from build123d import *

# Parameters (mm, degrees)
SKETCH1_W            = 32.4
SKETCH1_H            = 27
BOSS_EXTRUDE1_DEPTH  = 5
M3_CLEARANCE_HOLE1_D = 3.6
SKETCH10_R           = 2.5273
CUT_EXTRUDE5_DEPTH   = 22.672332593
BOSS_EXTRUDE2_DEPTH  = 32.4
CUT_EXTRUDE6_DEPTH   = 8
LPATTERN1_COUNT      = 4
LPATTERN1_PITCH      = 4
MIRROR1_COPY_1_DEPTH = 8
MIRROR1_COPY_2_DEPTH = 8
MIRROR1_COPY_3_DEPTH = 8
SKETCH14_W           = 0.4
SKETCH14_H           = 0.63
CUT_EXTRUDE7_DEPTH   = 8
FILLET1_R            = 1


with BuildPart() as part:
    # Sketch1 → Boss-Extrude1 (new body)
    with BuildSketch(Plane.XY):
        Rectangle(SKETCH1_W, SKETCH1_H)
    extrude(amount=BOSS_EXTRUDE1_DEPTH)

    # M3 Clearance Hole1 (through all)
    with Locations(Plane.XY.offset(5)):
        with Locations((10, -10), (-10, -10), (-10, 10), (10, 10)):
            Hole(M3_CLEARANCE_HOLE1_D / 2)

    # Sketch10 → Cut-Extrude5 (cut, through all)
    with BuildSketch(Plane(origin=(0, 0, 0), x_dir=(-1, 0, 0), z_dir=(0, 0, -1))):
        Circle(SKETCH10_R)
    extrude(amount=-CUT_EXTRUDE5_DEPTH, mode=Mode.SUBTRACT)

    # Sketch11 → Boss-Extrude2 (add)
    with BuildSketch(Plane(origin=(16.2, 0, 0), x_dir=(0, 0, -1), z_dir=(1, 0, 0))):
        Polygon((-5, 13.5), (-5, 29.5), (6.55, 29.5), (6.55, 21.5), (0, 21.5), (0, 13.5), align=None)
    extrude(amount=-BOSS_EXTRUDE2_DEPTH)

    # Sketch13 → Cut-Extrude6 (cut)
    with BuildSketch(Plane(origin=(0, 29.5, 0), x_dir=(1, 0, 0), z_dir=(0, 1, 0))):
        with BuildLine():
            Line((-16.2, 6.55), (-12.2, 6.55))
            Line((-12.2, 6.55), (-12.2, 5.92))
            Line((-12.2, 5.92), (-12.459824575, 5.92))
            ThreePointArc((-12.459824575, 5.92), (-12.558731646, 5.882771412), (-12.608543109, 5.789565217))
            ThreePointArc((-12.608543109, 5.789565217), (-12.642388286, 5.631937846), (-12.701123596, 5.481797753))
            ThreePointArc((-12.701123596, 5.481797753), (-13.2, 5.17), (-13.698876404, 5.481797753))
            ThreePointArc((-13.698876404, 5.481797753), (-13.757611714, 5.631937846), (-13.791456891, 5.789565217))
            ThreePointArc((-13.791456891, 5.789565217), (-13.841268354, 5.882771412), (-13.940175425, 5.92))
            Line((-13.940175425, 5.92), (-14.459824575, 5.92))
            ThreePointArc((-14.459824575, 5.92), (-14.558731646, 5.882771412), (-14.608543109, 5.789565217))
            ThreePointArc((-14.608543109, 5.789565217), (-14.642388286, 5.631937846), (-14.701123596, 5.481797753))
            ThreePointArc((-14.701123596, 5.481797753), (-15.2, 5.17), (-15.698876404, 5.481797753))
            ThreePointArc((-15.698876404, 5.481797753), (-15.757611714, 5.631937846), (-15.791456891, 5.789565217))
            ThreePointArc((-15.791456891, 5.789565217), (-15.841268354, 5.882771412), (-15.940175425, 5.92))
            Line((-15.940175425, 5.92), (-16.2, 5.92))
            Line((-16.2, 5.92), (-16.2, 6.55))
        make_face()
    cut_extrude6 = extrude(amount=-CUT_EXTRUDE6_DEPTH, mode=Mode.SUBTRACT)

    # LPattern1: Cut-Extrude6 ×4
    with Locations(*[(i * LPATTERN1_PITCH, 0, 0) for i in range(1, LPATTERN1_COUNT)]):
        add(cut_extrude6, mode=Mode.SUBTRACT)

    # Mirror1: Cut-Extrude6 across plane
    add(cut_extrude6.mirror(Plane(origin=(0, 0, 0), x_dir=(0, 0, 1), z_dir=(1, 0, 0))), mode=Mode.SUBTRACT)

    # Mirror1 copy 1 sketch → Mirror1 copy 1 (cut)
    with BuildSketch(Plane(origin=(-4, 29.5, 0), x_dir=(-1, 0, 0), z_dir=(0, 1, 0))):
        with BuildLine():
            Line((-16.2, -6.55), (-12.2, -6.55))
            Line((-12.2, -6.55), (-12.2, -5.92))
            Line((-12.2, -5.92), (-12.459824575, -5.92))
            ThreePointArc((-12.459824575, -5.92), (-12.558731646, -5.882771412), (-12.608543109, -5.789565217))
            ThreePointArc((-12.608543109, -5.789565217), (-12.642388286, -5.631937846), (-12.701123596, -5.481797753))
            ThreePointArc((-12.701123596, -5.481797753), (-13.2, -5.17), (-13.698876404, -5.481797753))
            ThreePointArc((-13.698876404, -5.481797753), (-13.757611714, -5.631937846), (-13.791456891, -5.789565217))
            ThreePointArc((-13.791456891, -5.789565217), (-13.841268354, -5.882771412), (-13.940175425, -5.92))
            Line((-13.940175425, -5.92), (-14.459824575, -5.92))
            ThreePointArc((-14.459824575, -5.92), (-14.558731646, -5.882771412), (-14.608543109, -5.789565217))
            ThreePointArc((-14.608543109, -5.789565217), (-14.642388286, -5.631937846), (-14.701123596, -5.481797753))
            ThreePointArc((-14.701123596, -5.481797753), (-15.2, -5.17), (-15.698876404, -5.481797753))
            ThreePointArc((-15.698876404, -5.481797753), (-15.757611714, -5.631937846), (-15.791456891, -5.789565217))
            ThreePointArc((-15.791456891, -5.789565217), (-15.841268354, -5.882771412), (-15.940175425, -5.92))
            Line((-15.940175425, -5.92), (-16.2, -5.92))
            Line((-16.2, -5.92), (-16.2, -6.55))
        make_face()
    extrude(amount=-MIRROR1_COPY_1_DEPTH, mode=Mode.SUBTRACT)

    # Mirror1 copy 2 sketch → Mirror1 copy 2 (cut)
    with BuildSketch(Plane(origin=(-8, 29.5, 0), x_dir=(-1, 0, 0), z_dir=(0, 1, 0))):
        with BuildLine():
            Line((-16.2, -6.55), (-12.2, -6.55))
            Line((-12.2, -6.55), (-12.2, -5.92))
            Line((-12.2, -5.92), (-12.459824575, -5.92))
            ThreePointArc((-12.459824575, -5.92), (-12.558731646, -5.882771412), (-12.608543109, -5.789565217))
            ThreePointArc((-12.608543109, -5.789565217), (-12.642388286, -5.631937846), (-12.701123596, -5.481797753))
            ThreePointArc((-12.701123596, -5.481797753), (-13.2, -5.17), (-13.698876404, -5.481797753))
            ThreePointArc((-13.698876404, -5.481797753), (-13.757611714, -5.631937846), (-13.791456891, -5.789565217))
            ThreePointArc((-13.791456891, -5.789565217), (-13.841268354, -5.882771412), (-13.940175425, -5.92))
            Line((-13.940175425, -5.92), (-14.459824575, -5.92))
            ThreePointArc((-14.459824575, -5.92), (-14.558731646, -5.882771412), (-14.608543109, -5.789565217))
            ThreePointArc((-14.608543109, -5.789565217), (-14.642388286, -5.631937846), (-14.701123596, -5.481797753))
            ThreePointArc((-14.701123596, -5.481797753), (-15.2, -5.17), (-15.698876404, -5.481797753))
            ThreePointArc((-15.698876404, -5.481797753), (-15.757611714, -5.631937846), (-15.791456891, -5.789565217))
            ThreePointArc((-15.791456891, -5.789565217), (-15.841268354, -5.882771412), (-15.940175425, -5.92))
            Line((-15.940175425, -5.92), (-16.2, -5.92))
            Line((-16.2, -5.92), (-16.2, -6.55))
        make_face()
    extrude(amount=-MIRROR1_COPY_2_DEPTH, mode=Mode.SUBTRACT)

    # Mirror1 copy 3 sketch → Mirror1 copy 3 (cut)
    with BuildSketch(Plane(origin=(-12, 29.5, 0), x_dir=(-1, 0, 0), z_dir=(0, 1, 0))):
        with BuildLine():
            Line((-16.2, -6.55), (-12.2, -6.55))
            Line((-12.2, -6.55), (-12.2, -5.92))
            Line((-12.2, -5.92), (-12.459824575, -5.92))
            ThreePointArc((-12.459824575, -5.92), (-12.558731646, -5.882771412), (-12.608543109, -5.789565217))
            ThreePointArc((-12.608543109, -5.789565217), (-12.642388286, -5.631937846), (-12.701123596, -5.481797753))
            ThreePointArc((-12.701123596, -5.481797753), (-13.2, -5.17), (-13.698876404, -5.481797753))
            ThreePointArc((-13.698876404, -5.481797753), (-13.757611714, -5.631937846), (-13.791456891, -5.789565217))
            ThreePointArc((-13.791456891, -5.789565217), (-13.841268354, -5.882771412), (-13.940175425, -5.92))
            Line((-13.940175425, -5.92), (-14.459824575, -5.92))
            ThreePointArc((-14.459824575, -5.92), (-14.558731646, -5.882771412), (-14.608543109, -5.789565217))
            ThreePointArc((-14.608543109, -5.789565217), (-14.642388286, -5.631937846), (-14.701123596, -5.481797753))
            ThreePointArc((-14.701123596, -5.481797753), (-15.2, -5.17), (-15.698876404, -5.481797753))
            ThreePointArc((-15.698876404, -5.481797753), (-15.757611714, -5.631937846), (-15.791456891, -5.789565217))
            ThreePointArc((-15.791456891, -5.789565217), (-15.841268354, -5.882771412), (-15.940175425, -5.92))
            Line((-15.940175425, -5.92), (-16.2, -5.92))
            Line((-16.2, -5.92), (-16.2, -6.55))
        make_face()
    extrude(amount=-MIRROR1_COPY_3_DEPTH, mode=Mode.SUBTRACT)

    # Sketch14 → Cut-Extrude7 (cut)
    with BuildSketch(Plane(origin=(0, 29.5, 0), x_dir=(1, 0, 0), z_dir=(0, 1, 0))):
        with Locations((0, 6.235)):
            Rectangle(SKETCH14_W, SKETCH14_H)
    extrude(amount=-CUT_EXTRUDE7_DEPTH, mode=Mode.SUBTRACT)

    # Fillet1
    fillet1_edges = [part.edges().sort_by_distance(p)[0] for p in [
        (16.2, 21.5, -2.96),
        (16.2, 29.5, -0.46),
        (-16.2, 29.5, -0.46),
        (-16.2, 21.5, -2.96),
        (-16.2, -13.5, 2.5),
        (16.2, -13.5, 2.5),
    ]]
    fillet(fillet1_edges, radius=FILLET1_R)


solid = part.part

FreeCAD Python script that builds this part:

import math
import FreeCAD as App
import Part
import Sketcher
Q = App.Units.Quantity


def edges_at(feature, points):
    """Names of the edges that pass closest to the given points."""
    edges = feature.Shape.Edges
    near = lambda p: min(range(len(edges)), key=lambda i: edges[i].distToShape(Part.Vertex(*p))[0])
    return sorted({f"Edge{near(p) + 1}" for p in points})


def add_polygon(sketch, points):
    """Adds a closed chain of lines whose ends are joined by coincident constraints."""
    first, n = sketch.GeometryCount, len(points)
    for a, b in zip(points, points[1:] + points[:1]):
        sketch.addGeometry(Part.LineSegment(App.Vector(*a, 0), App.Vector(*b, 0)), False)
    for i in range(n):
        sketch.addConstraint(Sketcher.Constraint("Coincident", first + i, 2, first + (i + 1) % n, 1))

doc = App.newDocument("Part")
body = doc.addObject("PartDesign::Body", "Body")

sketch1 = body.newObject("Sketcher::SketchObject", "Sketch")
sketch1.AttachmentSupport = (doc.getObject("XY_Plane"), [""])
sketch1.MapMode = "FlatFace"
add_polygon(sketch1, [(-16, 14), (-16, -14), (16, -14), (16, 14)])
sketch1.addConstraint(Sketcher.Constraint("Vertical", 0))
sketch1.addConstraint(Sketcher.Constraint("Horizontal", 1))
sketch1.addConstraint(Sketcher.Constraint("Vertical", 2))
sketch1.addConstraint(Sketcher.Constraint("Horizontal", 3))
sketch1.addConstraint(Sketcher.Constraint("Symmetric", 0, 2, 2, 2, -1, 1))
sketch1.addConstraint(Sketcher.Constraint("DistanceY", 0, 2, 0, 1, Q("27 mm")))
sketch1.addConstraint(Sketcher.Constraint("DistanceX", 1, 1, 1, 2, Q("32.4 mm")))
pad1 = body.newObject("PartDesign::Pad", "Pad")
pad1.Profile = sketch1
pad1.Length = 5

sketch2 = body.newObject("Sketcher::SketchObject", "Sketch001")
sketch2.AttachmentSupport = (doc.getObject("XY_Plane"), [""])
sketch2.MapMode = "FlatFace"
sketch2.AttachmentOffset = App.Placement(App.Vector(0, 0, 5), App.Rotation())
sketch2.addGeometry(Part.Circle(App.Vector(10, -10, 0), App.Vector(0, 0, 1), 1.8), False)
sketch2.addGeometry(Part.Circle(App.Vector(-10, -10, 0), App.Vector(0, 0, 1), 1.8), False)
sketch2.addGeometry(Part.Circle(App.Vector(-10, 10, 0), App.Vector(0, 0, 1), 1.8), False)
sketch2.addGeometry(Part.Circle(App.Vector(10, 10, 0), App.Vector(0, 0, 1), 1.8), False)
sketch2.addConstraint(Sketcher.Constraint("Equal", 0, 1))
sketch2.addConstraint(Sketcher.Constraint("Equal", 1, 2))
sketch2.addConstraint(Sketcher.Constraint("Equal", 2, 3))
sketch2.addConstraint(Sketcher.Constraint("Symmetric", 0, 3, 2, 3, -1, 1))
sketch2.addConstraint(Sketcher.Constraint("Symmetric", 1, 3, 3, 3, -1, 1))
sketch2.addConstraint(Sketcher.Constraint("Symmetric", 0, 3, 1, 3, -2))
sketch2.addConstraint(Sketcher.Constraint("Diameter", 0, Q("3.6 mm")))
sketch2.addConstraint(Sketcher.Constraint("DistanceX", -1, 1, 0, 3, Q("10 mm")))
sketch2.addConstraint(Sketcher.Constraint("DistanceY", 0, 3, -1, 1, Q("10 mm")))
doc.recompute()
hole = body.newObject("PartDesign::Hole", "Hole")
hole.Profile = sketch2
hole.ThreadType = "None"
hole.Diameter = 3.6
hole.DepthType = "ThroughAll"

sketch3 = body.newObject("Sketcher::SketchObject", "Sketch002")
sketch3.AttachmentSupport = (doc.getObject("XY_Plane"), [""])
sketch3.MapMode = "FlatFace"
sketch3.addGeometry(Part.Circle(App.Vector(0, 0, 0), App.Vector(0, 0, 1), 2.5), False)
sketch3.addConstraint(Sketcher.Constraint("Coincident", 0, 3, -1, 1))
sketch3.addConstraint(Sketcher.Constraint("Diameter", 0, Q("5.0546 mm")))
pocket1 = body.newObject("PartDesign::Pocket", "Pocket")
pocket1.Profile = sketch3
pocket1.Type = "ThroughAll"
pocket1.Reversed = True

sketch4 = body.newObject("Sketcher::SketchObject", "Sketch003")
sketch4.AttachmentSupport = (doc.getObject("YZ_Plane"), [""])
sketch4.MapMode = "FlatFace"
sketch4.AttachmentOffset = App.Placement(App.Vector(0, 0, 16.2), App.Rotation())
add_polygon(sketch4, [(30, 5), (14, 5), (14, 0), (22, 0), (22, -7), (30, -7)])
sketch4.addConstraint(Sketcher.Constraint("Horizontal", 0))
sketch4.addConstraint(Sketcher.Constraint("Vertical", 1))
sketch4.addConstraint(Sketcher.Constraint("Horizontal", 2))
sketch4.addConstraint(Sketcher.Constraint("Vertical", 3))
sketch4.addConstraint(Sketcher.Constraint("Horizontal", 4))
sketch4.addConstraint(Sketcher.Constraint("Vertical", 5))
sketch4.addConstraint(Sketcher.Constraint("PointOnObject", 1, 2, -1))
sketch4.addConstraint(Sketcher.Constraint("Equal", 2, 4))
sketch4.addConstraint(Sketcher.Constraint("DistanceX", 0, 2, 0, 1, Q("16 mm")))
sketch4.addConstraint(Sketcher.Constraint("DistanceY", 1, 2, 1, 1, Q("5 mm")))
sketch4.addConstraint(Sketcher.Constraint("DistanceY", 3, 2, 3, 1, Q("6.55 mm")))
sketch4.addConstraint(Sketcher.Constraint("DistanceX", -1, 1, 0, 2, Q("13.5 mm")))
pad2 = body.newObject("PartDesign::Pad", "Pad001")
pad2.Profile = sketch4
pad2.Length = 32.4
pad2.Reversed = True

sketch5 = body.newObject("Sketcher::SketchObject", "Sketch004")
sketch5.AttachmentSupport = (doc.getObject("XZ_Plane"), [""])
sketch5.MapMode = "FlatFace"
sketch5.AttachmentOffset = App.Placement(App.Vector(0, 0, -29.5), App.Rotation())
sketch5.addGeometry(Part.LineSegment(App.Vector(-12.2, -6.55, 0), App.Vector(-16.2, -6.55, 0)), False)
sketch5.addGeometry(Part.LineSegment(App.Vector(-16.2, -6.55, 0), App.Vector(-16.2, -5.92, 0)), False)
sketch5.addGeometry(Part.LineSegment(App.Vector(-16.2, -5.92, 0), App.Vector(-15.94, -5.92, 0)), False)
sketch5.addGeometry(Part.ArcOfCircle(Part.Circle(App.Vector(-15.94, -5.77, 0), App.Vector(0, 0, 1), 0.15), math.radians(-90), math.radians(-7)), False)
sketch5.addGeometry(Part.ArcOfCircle(Part.Circle(App.Vector(-14.8, -5.92, 0), App.Vector(0, 0, 1), 1), math.radians(154.01), math.radians(172.51)), False)
sketch5.addGeometry(Part.ArcOfCircle(Part.Circle(App.Vector(-15.2, -5.72, 0), App.Vector(0, 0, 1), 0.55), math.radians(26), math.radians(154)), False)
sketch5.addGeometry(Part.ArcOfCircle(Part.Circle(App.Vector(-15.6, -5.92, 0), App.Vector(0, 0, 1), 1), math.radians(7.49), math.radians(25.99)), False)
sketch5.addGeometry(Part.ArcOfCircle(Part.Circle(App.Vector(-14.46, -5.77, 0), App.Vector(0, 0, 1), 0.15), math.radians(-173), math.radians(-90)), False)
sketch5.addGeometry(Part.LineSegment(App.Vector(-14.46, -5.92, 0), App.Vector(-13.94, -5.92, 0)), False)
sketch5.addGeometry(Part.ArcOfCircle(Part.Circle(App.Vector(-13.94, -5.77, 0), App.Vector(0, 0, 1), 0.15), math.radians(-90), math.radians(-7)), False)
sketch5.addGeometry(Part.ArcOfCircle(Part.Circle(App.Vector(-12.8, -5.92, 0), App.Vector(0, 0, 1), 1), math.radians(154.01), math.radians(172.51)), False)
sketch5.addGeometry(Part.ArcOfCircle(Part.Circle(App.Vector(-13.2, -5.72, 0), App.Vector(0, 0, 1), 0.55), math.radians(26), math.radians(154)), False)
sketch5.addGeometry(Part.ArcOfCircle(Part.Circle(App.Vector(-13.6, -5.92, 0), App.Vector(0, 0, 1), 1), math.radians(7.49), math.radians(25.99)), False)
sketch5.addGeometry(Part.ArcOfCircle(Part.Circle(App.Vector(-12.46, -5.77, 0), App.Vector(0, 0, 1), 0.15), math.radians(-173), math.radians(-90)), False)
sketch5.addGeometry(Part.LineSegment(App.Vector(-12.46, -5.92, 0), App.Vector(-12.2, -5.92, 0)), False)
sketch5.addGeometry(Part.LineSegment(App.Vector(-12.2, -5.92, 0), App.Vector(-12.2, -6.55, 0)), False)
sketch5.addConstraint(Sketcher.Constraint("Coincident", 0, 2, 1, 1))
sketch5.addConstraint(Sketcher.Constraint("Coincident", 1, 2, 2, 1))
sketch5.addConstraint(Sketcher.Constraint("Tangent", 2, 2, 3, 1))
sketch5.addConstraint(Sketcher.Constraint("Tangent", 3, 2, 4, 2))
sketch5.addConstraint(Sketcher.Constraint("Tangent", 4, 1, 5, 2))
sketch5.addConstraint(Sketcher.Constraint("Tangent", 5, 1, 6, 2))
sketch5.addConstraint(Sketcher.Constraint("Tangent", 6, 1, 7, 1))
sketch5.addConstraint(Sketcher.Constraint("Tangent", 7, 2, 8, 1))
sketch5.addConstraint(Sketcher.Constraint("Tangent", 8, 2, 9, 1))
sketch5.addConstraint(Sketcher.Constraint("Tangent", 9, 2, 10, 2))
sketch5.addConstraint(Sketcher.Constraint("Tangent", 10, 1, 11, 2))
sketch5.addConstraint(Sketcher.Constraint("Tangent", 11, 1, 12, 2))
sketch5.addConstraint(Sketcher.Constraint("Tangent", 12, 1, 13, 1))
sketch5.addConstraint(Sketcher.Constraint("Tangent", 13, 2, 14, 1))
sketch5.addConstraint(Sketcher.Constraint("Coincident", 14, 2, 15, 1))
sketch5.addConstraint(Sketcher.Constraint("Coincident", 15, 2, 0, 1))
sketch5.addConstraint(Sketcher.Constraint("Horizontal", 0))
sketch5.addConstraint(Sketcher.Constraint("Vertical", 1))
sketch5.addConstraint(Sketcher.Constraint("Horizontal", 2))
sketch5.addConstraint(Sketcher.Constraint("Horizontal", 8))
sketch5.addConstraint(Sketcher.Constraint("Horizontal", 14))
sketch5.addConstraint(Sketcher.Constraint("Vertical", 15))
sketch5.addConstraint(Sketcher.Constraint("Equal", 4, 6))
sketch5.addConstraint(Sketcher.Constraint("Equal", 3, 7))
sketch5.addConstraint(Sketcher.Constraint("Equal", 7, 9))
sketch5.addConstraint(Sketcher.Constraint("Equal", 6, 10))
sketch5.addConstraint(Sketcher.Constraint("Equal", 5, 11))
sketch5.addConstraint(Sketcher.Constraint("Equal", 10, 12))
sketch5.addConstraint(Sketcher.Constraint("Equal", 9, 13))
sketch5.addConstraint(Sketcher.Constraint("Horizontal", 4, 3, 6, 3))
sketch5.addConstraint(Sketcher.Constraint("Horizontal", 3, 3, 7, 3))
sketch5.addConstraint(Sketcher.Constraint("Horizontal", 6, 3, 10, 3))
sketch5.addConstraint(Sketcher.Constraint("Horizontal", 5, 3, 11, 3))
sketch5.addConstraint(Sketcher.Constraint("Horizontal", 10, 3, 12, 3))
sketch5.addConstraint(Sketcher.Constraint("Horizontal", 9, 3, 13, 3))
sketch5.addConstraint(Sketcher.Constraint("Horizontal", 12, 3, 1, 2))
sketch5.addConstraint(Sketcher.Constraint("Equal", 2, 14))
sketch5.addConstraint(Sketcher.Constraint("Radius", 4, Q("1 mm")))
sketch5.addConstraint(Sketcher.Constraint("DistanceX", 0, 2, 0, 1, Q("4 mm")))
sketch5.addConstraint(Sketcher.Constraint("Radius", 3, Q("0.15 mm")))
sketch5.addConstraint(Sketcher.Constraint("Radius", 5, Q("0.555 mm")))
sketch5.addConstraint(Sketcher.Constraint("DistanceX", 3, 3, 9, 3, Q("2 mm")))
sketch5.addConstraint(Sketcher.Constraint("DistanceY", 1, 1, 1, 2, Q("0.63 mm")))
sketch5.addConstraint(Sketcher.Constraint("DistanceX", 4, 3, -1, 1, Q("14.8 mm")))
sketch5.addConstraint(Sketcher.Constraint("DistanceX", 5, 3, -1, 1, Q("15.2 mm")))
sketch5.addConstraint(Sketcher.Constraint("DistanceY", 3, 3, -1, 1, Q("5.77 mm")))
pocket2 = body.newObject("PartDesign::Pocket", "Pocket001")
pocket2.Profile = sketch5
pocket2.Length = 8
pocket2.Reversed = True
doc.recompute()

linearpattern = body.newObject("PartDesign::LinearPattern", "LinearPattern")
linearpattern.Originals = [pocket2]
linearpattern.Direction = (doc.getObject("X_Axis"), [""])
linearpattern.Mode = "offset"
linearpattern.Offset = 4
linearpattern.Occurrences = 4
body.Tip = linearpattern
doc.recompute()

mirrored = body.newObject("PartDesign::Mirrored", "Mirrored")
mirrored.Originals = [pocket2]
mirrored.MirrorPlane = (doc.getObject("YZ_Plane"), [""])
body.Tip = mirrored

sketch6 = body.newObject("Sketcher::SketchObject", "Sketch005")
sketch6.AttachmentSupport = (doc.getObject("XZ_Plane"), [""])
sketch6.MapMode = "FlatFace"
sketch6.AttachmentOffset = App.Placement(App.Vector(0, 0, -29.5), App.Rotation())
sketch6.addGeometry(Part.LineSegment(App.Vector(12.2, -6.55, 0), App.Vector(8.2, -6.55, 0)), False)
sketch6.addGeometry(Part.LineSegment(App.Vector(8.2, -6.55, 0), App.Vector(8.2, -5.92, 0)), False)
sketch6.addGeometry(Part.LineSegment(App.Vector(8.2, -5.92, 0), App.Vector(8.46, -5.92, 0)), False)
sketch6.addGeometry(Part.ArcOfCircle(Part.Circle(App.Vector(8.46, -5.77, 0), App.Vector(0, 0, 1), 0.15), math.radians(-90), math.radians(-7)), False)
sketch6.addGeometry(Part.ArcOfCircle(Part.Circle(App.Vector(9.6, -5.92, 0), App.Vector(0, 0, 1), 1), math.radians(154.01), math.radians(172.51)), False)
sketch6.addGeometry(Part.ArcOfCircle(Part.Circle(App.Vector(9.2, -5.72, 0), App.Vector(0, 0, 1), 0.55), math.radians(26), math.radians(154)), False)
sketch6.addGeometry(Part.ArcOfCircle(Part.Circle(App.Vector(8.8, -5.92, 0), App.Vector(0, 0, 1), 1), math.radians(7.49), math.radians(25.99)), False)
sketch6.addGeometry(Part.ArcOfCircle(Part.Circle(App.Vector(9.94, -5.77, 0), App.Vector(0, 0, 1), 0.15), math.radians(-173), math.radians(-90)), False)
sketch6.addGeometry(Part.LineSegment(App.Vector(9.94, -5.92, 0), App.Vector(10.46, -5.92, 0)), False)
sketch6.addGeometry(Part.ArcOfCircle(Part.Circle(App.Vector(10.46, -5.77, 0), App.Vector(0, 0, 1), 0.15), math.radians(-90), math.radians(-7)), False)
sketch6.addGeometry(Part.ArcOfCircle(Part.Circle(App.Vector(11.6, -5.92, 0), App.Vector(0, 0, 1), 1), math.radians(154.01), math.radians(172.51)), False)
sketch6.addGeometry(Part.ArcOfCircle(Part.Circle(App.Vector(11.2, -5.72, 0), App.Vector(0, 0, 1), 0.55), math.radians(26), math.radians(154)), False)
sketch6.addGeometry(Part.ArcOfCircle(Part.Circle(App.Vector(10.8, -5.92, 0), App.Vector(0, 0, 1), 1), math.radians(7.49), math.radians(25.99)), False)
sketch6.addGeometry(Part.ArcOfCircle(Part.Circle(App.Vector(11.94, -5.77, 0), App.Vector(0, 0, 1), 0.15), math.radians(-173), math.radians(-90)), False)
sketch6.addGeometry(Part.LineSegment(App.Vector(11.94, -5.92, 0), App.Vector(12.2, -5.92, 0)), False)
sketch6.addGeometry(Part.LineSegment(App.Vector(12.2, -5.92, 0), App.Vector(12.2, -6.55, 0)), False)
sketch6.addConstraint(Sketcher.Constraint("Coincident", 0, 2, 1, 1))
sketch6.addConstraint(Sketcher.Constraint("Coincident", 1, 2, 2, 1))
sketch6.addConstraint(Sketcher.Constraint("Tangent", 2, 2, 3, 1))
sketch6.addConstraint(Sketcher.Constraint("Tangent", 3, 2, 4, 2))
sketch6.addConstraint(Sketcher.Constraint("Tangent", 4, 1, 5, 2))
sketch6.addConstraint(Sketcher.Constraint("Tangent", 5, 1, 6, 2))
sketch6.addConstraint(Sketcher.Constraint("Tangent", 6, 1, 7, 1))
sketch6.addConstraint(Sketcher.Constraint("Tangent", 7, 2, 8, 1))
sketch6.addConstraint(Sketcher.Constraint("Tangent", 8, 2, 9, 1))
sketch6.addConstraint(Sketcher.Constraint("Tangent", 9, 2, 10, 2))
sketch6.addConstraint(Sketcher.Constraint("Tangent", 10, 1, 11, 2))
sketch6.addConstraint(Sketcher.Constraint("Tangent", 11, 1, 12, 2))
sketch6.addConstraint(Sketcher.Constraint("Tangent", 12, 1, 13, 1))
sketch6.addConstraint(Sketcher.Constraint("Tangent", 13, 2, 14, 1))
sketch6.addConstraint(Sketcher.Constraint("Coincident", 14, 2, 15, 1))
sketch6.addConstraint(Sketcher.Constraint("Coincident", 15, 2, 0, 1))
sketch6.addConstraint(Sketcher.Constraint("Horizontal", 0))
sketch6.addConstraint(Sketcher.Constraint("Vertical", 1))
sketch6.addConstraint(Sketcher.Constraint("Horizontal", 2))
sketch6.addConstraint(Sketcher.Constraint("Horizontal", 8))
sketch6.addConstraint(Sketcher.Constraint("Horizontal", 14))
sketch6.addConstraint(Sketcher.Constraint("Vertical", 15))
sketch6.addConstraint(Sketcher.Constraint("Equal", 4, 6))
sketch6.addConstraint(Sketcher.Constraint("Equal", 3, 7))
sketch6.addConstraint(Sketcher.Constraint("Equal", 7, 9))
sketch6.addConstraint(Sketcher.Constraint("Equal", 6, 10))
sketch6.addConstraint(Sketcher.Constraint("Equal", 5, 11))
sketch6.addConstraint(Sketcher.Constraint("Equal", 10, 12))
sketch6.addConstraint(Sketcher.Constraint("Equal", 9, 13))
sketch6.addConstraint(Sketcher.Constraint("Horizontal", 4, 3, 6, 3))
sketch6.addConstraint(Sketcher.Constraint("Horizontal", 3, 3, 7, 3))
sketch6.addConstraint(Sketcher.Constraint("Horizontal", 6, 3, 10, 3))
sketch6.addConstraint(Sketcher.Constraint("Horizontal", 5, 3, 11, 3))
sketch6.addConstraint(Sketcher.Constraint("Horizontal", 10, 3, 12, 3))
sketch6.addConstraint(Sketcher.Constraint("Horizontal", 9, 3, 13, 3))
sketch6.addConstraint(Sketcher.Constraint("Horizontal", 12, 3, 1, 2))
sketch6.addConstraint(Sketcher.Constraint("Equal", 2, 14))
sketch6.addConstraint(Sketcher.Constraint("Radius", 4, Q("1 mm")))
sketch6.addConstraint(Sketcher.Constraint("DistanceX", 0, 2, 0, 1, Q("4 mm")))
sketch6.addConstraint(Sketcher.Constraint("Radius", 3, Q("0.15 mm")))
sketch6.addConstraint(Sketcher.Constraint("Radius", 5, Q("0.555 mm")))
sketch6.addConstraint(Sketcher.Constraint("DistanceX", 3, 3, 9, 3, Q("2 mm")))
sketch6.addConstraint(Sketcher.Constraint("DistanceY", 1, 1, 1, 2, Q("0.63 mm")))
sketch6.addConstraint(Sketcher.Constraint("DistanceX", -1, 1, 4, 3, Q("9.6 mm")))
sketch6.addConstraint(Sketcher.Constraint("DistanceX", -1, 1, 5, 3, Q("9.2 mm")))
sketch6.addConstraint(Sketcher.Constraint("DistanceY", 3, 3, -1, 1, Q("5.77 mm")))
pocket3 = body.newObject("PartDesign::Pocket", "Pocket002")
pocket3.Profile = sketch6
pocket3.Length = 8
pocket3.Reversed = True

sketch7 = body.newObject("Sketcher::SketchObject", "Sketch006")
sketch7.AttachmentSupport = (doc.getObject("XZ_Plane"), [""])
sketch7.MapMode = "FlatFace"
sketch7.AttachmentOffset = App.Placement(App.Vector(0, 0, -29.5), App.Rotation())
sketch7.addGeometry(Part.LineSegment(App.Vector(8.2, -6.55, 0), App.Vector(4.2, -6.55, 0)), False)
sketch7.addGeometry(Part.LineSegment(App.Vector(4.2, -6.55, 0), App.Vector(4.2, -5.92, 0)), False)
sketch7.addGeometry(Part.LineSegment(App.Vector(4.2, -5.92, 0), App.Vector(4.46, -5.92, 0)), False)
sketch7.addGeometry(Part.ArcOfCircle(Part.Circle(App.Vector(4.46, -5.77, 0), App.Vector(0, 0, 1), 0.15), math.radians(-90), math.radians(-7)), False)
sketch7.addGeometry(Part.ArcOfCircle(Part.Circle(App.Vector(5.6, -5.92, 0), App.Vector(0, 0, 1), 1), math.radians(154.01), math.radians(172.51)), False)
sketch7.addGeometry(Part.ArcOfCircle(Part.Circle(App.Vector(5.2, -5.72, 0), App.Vector(0, 0, 1), 0.55), math.radians(26), math.radians(154)), False)
sketch7.addGeometry(Part.ArcOfCircle(Part.Circle(App.Vector(4.8, -5.92, 0), App.Vector(0, 0, 1), 1), math.radians(7.49), math.radians(25.99)), False)
sketch7.addGeometry(Part.ArcOfCircle(Part.Circle(App.Vector(5.94, -5.77, 0), App.Vector(0, 0, 1), 0.15), math.radians(-173), math.radians(-90)), False)
sketch7.addGeometry(Part.LineSegment(App.Vector(5.94, -5.92, 0), App.Vector(6.46, -5.92, 0)), False)
sketch7.addGeometry(Part.ArcOfCircle(Part.Circle(App.Vector(6.46, -5.77, 0), App.Vector(0, 0, 1), 0.15), math.radians(-90), math.radians(-7)), False)
sketch7.addGeometry(Part.ArcOfCircle(Part.Circle(App.Vector(7.6, -5.92, 0), App.Vector(0, 0, 1), 1), math.radians(154.01), math.radians(172.51)), False)
sketch7.addGeometry(Part.ArcOfCircle(Part.Circle(App.Vector(7.2, -5.72, 0), App.Vector(0, 0, 1), 0.55), math.radians(26), math.radians(154)), False)
sketch7.addGeometry(Part.ArcOfCircle(Part.Circle(App.Vector(6.8, -5.92, 0), App.Vector(0, 0, 1), 1), math.radians(7.49), math.radians(25.99)), False)
sketch7.addGeometry(Part.ArcOfCircle(Part.Circle(App.Vector(7.94, -5.77, 0), App.Vector(0, 0, 1), 0.15), math.radians(-173), math.radians(-90)), False)
sketch7.addGeometry(Part.LineSegment(App.Vector(7.94, -5.92, 0), App.Vector(8.2, -5.92, 0)), False)
sketch7.addGeometry(Part.LineSegment(App.Vector(8.2, -5.92, 0), App.Vector(8.2, -6.55, 0)), False)
sketch7.addConstraint(Sketcher.Constraint("Coincident", 0, 2, 1, 1))
sketch7.addConstraint(Sketcher.Constraint("Coincident", 1, 2, 2, 1))
sketch7.addConstraint(Sketcher.Constraint("Tangent", 2, 2, 3, 1))
sketch7.addConstraint(Sketcher.Constraint("Tangent", 3, 2, 4, 2))
sketch7.addConstraint(Sketcher.Constraint("Tangent", 4, 1, 5, 2))
sketch7.addConstraint(Sketcher.Constraint("Tangent", 5, 1, 6, 2))
sketch7.addConstraint(Sketcher.Constraint("Tangent", 6, 1, 7, 1))
sketch7.addConstraint(Sketcher.Constraint("Tangent", 7, 2, 8, 1))
sketch7.addConstraint(Sketcher.Constraint("Tangent", 8, 2, 9, 1))
sketch7.addConstraint(Sketcher.Constraint("Tangent", 9, 2, 10, 2))
sketch7.addConstraint(Sketcher.Constraint("Tangent", 10, 1, 11, 2))
sketch7.addConstraint(Sketcher.Constraint("Tangent", 11, 1, 12, 2))
sketch7.addConstraint(Sketcher.Constraint("Tangent", 12, 1, 13, 1))
sketch7.addConstraint(Sketcher.Constraint("Tangent", 13, 2, 14, 1))
sketch7.addConstraint(Sketcher.Constraint("Coincident", 14, 2, 15, 1))
sketch7.addConstraint(Sketcher.Constraint("Coincident", 15, 2, 0, 1))
sketch7.addConstraint(Sketcher.Constraint("Horizontal", 0))
sketch7.addConstraint(Sketcher.Constraint("Vertical", 1))
sketch7.addConstraint(Sketcher.Constraint("Horizontal", 2))
sketch7.addConstraint(Sketcher.Constraint("Horizontal", 8))
sketch7.addConstraint(Sketcher.Constraint("Horizontal", 14))
sketch7.addConstraint(Sketcher.Constraint("Vertical", 15))
sketch7.addConstraint(Sketcher.Constraint("Equal", 4, 6))
sketch7.addConstraint(Sketcher.Constraint("Equal", 3, 7))
sketch7.addConstraint(Sketcher.Constraint("Equal", 7, 9))
sketch7.addConstraint(Sketcher.Constraint("Equal", 6, 10))
sketch7.addConstraint(Sketcher.Constraint("Equal", 5, 11))
sketch7.addConstraint(Sketcher.Constraint("Equal", 10, 12))
sketch7.addConstraint(Sketcher.Constraint("Equal", 9, 13))
sketch7.addConstraint(Sketcher.Constraint("Horizontal", 4, 3, 6, 3))
sketch7.addConstraint(Sketcher.Constraint("Horizontal", 3, 3, 7, 3))
sketch7.addConstraint(Sketcher.Constraint("Horizontal", 6, 3, 10, 3))
sketch7.addConstraint(Sketcher.Constraint("Horizontal", 5, 3, 11, 3))
sketch7.addConstraint(Sketcher.Constraint("Horizontal", 10, 3, 12, 3))
sketch7.addConstraint(Sketcher.Constraint("Horizontal", 9, 3, 13, 3))
sketch7.addConstraint(Sketcher.Constraint("Horizontal", 12, 3, 1, 2))
sketch7.addConstraint(Sketcher.Constraint("Equal", 2, 14))
sketch7.addConstraint(Sketcher.Constraint("Radius", 4, Q("1 mm")))
sketch7.addConstraint(Sketcher.Constraint("DistanceX", 0, 2, 0, 1, Q("4 mm")))
sketch7.addConstraint(Sketcher.Constraint("Radius", 3, Q("0.15 mm")))
sketch7.addConstraint(Sketcher.Constraint("Radius", 5, Q("0.555 mm")))
sketch7.addConstraint(Sketcher.Constraint("DistanceX", 3, 3, 9, 3, Q("2 mm")))
sketch7.addConstraint(Sketcher.Constraint("DistanceY", 1, 1, 1, 2, Q("0.63 mm")))
sketch7.addConstraint(Sketcher.Constraint("DistanceX", -1, 1, 4, 3, Q("5.6 mm")))
sketch7.addConstraint(Sketcher.Constraint("DistanceX", -1, 1, 5, 3, Q("5.2 mm")))
sketch7.addConstraint(Sketcher.Constraint("DistanceY", 3, 3, -1, 1, Q("5.77 mm")))
pocket4 = body.newObject("PartDesign::Pocket", "Pocket003")
pocket4.Profile = sketch7
pocket4.Length = 8
pocket4.Reversed = True

sketch8 = body.newObject("Sketcher::SketchObject", "Sketch007")
sketch8.AttachmentSupport = (doc.getObject("XZ_Plane"), [""])
sketch8.MapMode = "FlatFace"
sketch8.AttachmentOffset = App.Placement(App.Vector(0, 0, -29.5), App.Rotation())
sketch8.addGeometry(Part.LineSegment(App.Vector(4.2, -6.55, 0), App.Vector(0.2, -6.55, 0)), False)
sketch8.addGeometry(Part.LineSegment(App.Vector(0.2, -6.55, 0), App.Vector(0.2, -5.92, 0)), False)
sketch8.addGeometry(Part.LineSegment(App.Vector(0.2, -5.92, 0), App.Vector(0.46, -5.92, 0)), False)
sketch8.addGeometry(Part.ArcOfCircle(Part.Circle(App.Vector(0.46, -5.77, 0), App.Vector(0, 0, 1), 0.15), math.radians(-90), math.radians(-7)), False)
sketch8.addGeometry(Part.ArcOfCircle(Part.Circle(App.Vector(1.6, -5.92, 0), App.Vector(0, 0, 1), 1), math.radians(154.01), math.radians(172.51)), False)
sketch8.addGeometry(Part.ArcOfCircle(Part.Circle(App.Vector(1.2, -5.72, 0), App.Vector(0, 0, 1), 0.55), math.radians(26), math.radians(154)), False)
sketch8.addGeometry(Part.ArcOfCircle(Part.Circle(App.Vector(0.8, -5.92, 0), App.Vector(0, 0, 1), 1), math.radians(7.49), math.radians(25.99)), False)
sketch8.addGeometry(Part.ArcOfCircle(Part.Circle(App.Vector(1.94, -5.77, 0), App.Vector(0, 0, 1), 0.15), math.radians(-173), math.radians(-90)), False)
sketch8.addGeometry(Part.LineSegment(App.Vector(1.94, -5.92, 0), App.Vector(2.46, -5.92, 0)), False)
sketch8.addGeometry(Part.ArcOfCircle(Part.Circle(App.Vector(2.46, -5.77, 0), App.Vector(0, 0, 1), 0.15), math.radians(-90), math.radians(-7)), False)
sketch8.addGeometry(Part.ArcOfCircle(Part.Circle(App.Vector(3.6, -5.92, 0), App.Vector(0, 0, 1), 1), math.radians(154.01), math.radians(172.51)), False)
sketch8.addGeometry(Part.ArcOfCircle(Part.Circle(App.Vector(3.2, -5.72, 0), App.Vector(0, 0, 1), 0.55), math.radians(26), math.radians(154)), False)
sketch8.addGeometry(Part.ArcOfCircle(Part.Circle(App.Vector(2.8, -5.92, 0), App.Vector(0, 0, 1), 1), math.radians(7.49), math.radians(25.99)), False)
sketch8.addGeometry(Part.ArcOfCircle(Part.Circle(App.Vector(3.94, -5.77, 0), App.Vector(0, 0, 1), 0.15), math.radians(-173), math.radians(-90)), False)
sketch8.addGeometry(Part.LineSegment(App.Vector(3.94, -5.92, 0), App.Vector(4.2, -5.92, 0)), False)
sketch8.addGeometry(Part.LineSegment(App.Vector(4.2, -5.92, 0), App.Vector(4.2, -6.55, 0)), False)
sketch8.addConstraint(Sketcher.Constraint("Coincident", 0, 2, 1, 1))
sketch8.addConstraint(Sketcher.Constraint("Coincident", 1, 2, 2, 1))
sketch8.addConstraint(Sketcher.Constraint("Tangent", 2, 2, 3, 1))
sketch8.addConstraint(Sketcher.Constraint("Tangent", 3, 2, 4, 2))
sketch8.addConstraint(Sketcher.Constraint("Tangent", 4, 1, 5, 2))
sketch8.addConstraint(Sketcher.Constraint("Tangent", 5, 1, 6, 2))
sketch8.addConstraint(Sketcher.Constraint("Tangent", 6, 1, 7, 1))
sketch8.addConstraint(Sketcher.Constraint("Tangent", 7, 2, 8, 1))
sketch8.addConstraint(Sketcher.Constraint("Tangent", 8, 2, 9, 1))
sketch8.addConstraint(Sketcher.Constraint("Tangent", 9, 2, 10, 2))
sketch8.addConstraint(Sketcher.Constraint("Tangent", 10, 1, 11, 2))
sketch8.addConstraint(Sketcher.Constraint("Tangent", 11, 1, 12, 2))
sketch8.addConstraint(Sketcher.Constraint("Tangent", 12, 1, 13, 1))
sketch8.addConstraint(Sketcher.Constraint("Tangent", 13, 2, 14, 1))
sketch8.addConstraint(Sketcher.Constraint("Coincident", 14, 2, 15, 1))
sketch8.addConstraint(Sketcher.Constraint("Coincident", 15, 2, 0, 1))
sketch8.addConstraint(Sketcher.Constraint("Horizontal", 0))
sketch8.addConstraint(Sketcher.Constraint("Vertical", 1))
sketch8.addConstraint(Sketcher.Constraint("Horizontal", 2))
sketch8.addConstraint(Sketcher.Constraint("Horizontal", 8))
sketch8.addConstraint(Sketcher.Constraint("Horizontal", 14))
sketch8.addConstraint(Sketcher.Constraint("Vertical", 15))
sketch8.addConstraint(Sketcher.Constraint("Equal", 4, 6))
sketch8.addConstraint(Sketcher.Constraint("Equal", 3, 7))
sketch8.addConstraint(Sketcher.Constraint("Equal", 7, 9))
sketch8.addConstraint(Sketcher.Constraint("Equal", 6, 10))
sketch8.addConstraint(Sketcher.Constraint("Equal", 5, 11))
sketch8.addConstraint(Sketcher.Constraint("Equal", 10, 12))
sketch8.addConstraint(Sketcher.Constraint("Equal", 9, 13))
sketch8.addConstraint(Sketcher.Constraint("Horizontal", 4, 3, 6, 3))
sketch8.addConstraint(Sketcher.Constraint("Horizontal", 3, 3, 7, 3))
sketch8.addConstraint(Sketcher.Constraint("Horizontal", 6, 3, 10, 3))
sketch8.addConstraint(Sketcher.Constraint("Horizontal", 5, 3, 11, 3))
sketch8.addConstraint(Sketcher.Constraint("Horizontal", 10, 3, 12, 3))
sketch8.addConstraint(Sketcher.Constraint("Horizontal", 9, 3, 13, 3))
sketch8.addConstraint(Sketcher.Constraint("Horizontal", 12, 3, 1, 2))
sketch8.addConstraint(Sketcher.Constraint("Equal", 2, 14))
sketch8.addConstraint(Sketcher.Constraint("Radius", 4, Q("1 mm")))
sketch8.addConstraint(Sketcher.Constraint("DistanceX", 0, 2, 0, 1, Q("4 mm")))
sketch8.addConstraint(Sketcher.Constraint("Radius", 3, Q("0.15 mm")))
sketch8.addConstraint(Sketcher.Constraint("Radius", 5, Q("0.555 mm")))
sketch8.addConstraint(Sketcher.Constraint("DistanceX", 3, 3, 9, 3, Q("2 mm")))
sketch8.addConstraint(Sketcher.Constraint("DistanceY", 1, 1, 1, 2, Q("0.63 mm")))
sketch8.addConstraint(Sketcher.Constraint("DistanceX", -1, 1, 4, 3, Q("1.6 mm")))
sketch8.addConstraint(Sketcher.Constraint("DistanceX", -1, 1, 5, 3, Q("1.2 mm")))
sketch8.addConstraint(Sketcher.Constraint("DistanceY", 3, 3, -1, 1, Q("5.77 mm")))
pocket5 = body.newObject("PartDesign::Pocket", "Pocket004")
pocket5.Profile = sketch8
pocket5.Length = 8
pocket5.Reversed = True

sketch9 = body.newObject("Sketcher::SketchObject", "Sketch008")
sketch9.AttachmentSupport = (doc.getObject("XZ_Plane"), [""])
sketch9.MapMode = "FlatFace"
sketch9.AttachmentOffset = App.Placement(App.Vector(0, 0, -29.5), App.Rotation())
add_polygon(sketch9, [(-0.2, -6.55), (-0.2, -5.92), (0.2, -5.92), (0.2, -6.55)])
sketch9.addConstraint(Sketcher.Constraint("Vertical", 0))
sketch9.addConstraint(Sketcher.Constraint("Horizontal", 1))
sketch9.addConstraint(Sketcher.Constraint("Vertical", 2))
sketch9.addConstraint(Sketcher.Constraint("Horizontal", 3))
sketch9.addConstraint(Sketcher.Constraint("DistanceX", 1, 1, 1, 2, Q("0.4 mm")))
sketch9.addConstraint(Sketcher.Constraint("DistanceY", 0, 1, 0, 2, Q("0.63 mm")))
sketch9.addConstraint(Sketcher.Constraint("DistanceX", 0, 2, -1, 1, Q("0.2 mm")))
sketch9.addConstraint(Sketcher.Constraint("DistanceY", 0, 2, -1, 1, Q("5.92 mm")))
pocket6 = body.newObject("PartDesign::Pocket", "Pocket005")
pocket6.Profile = sketch9
pocket6.Length = 8
pocket6.Reversed = True
doc.recompute()

fillet = body.newObject("PartDesign::Fillet", "Fillet")
fillet.Base = (pocket6, edges_at(pocket6, [
    (16.2, 21.5, -2.96),
    (16.2, 29.5, -0.46),
    (-16.2, 29.5, -0.46),
    (-16.2, 21.5, -2.96),
    (-16.2, -13.5, 2.5),
    (16.2, -13.5, 2.5),
]))
fillet.Radius = 1

doc.recompute()
